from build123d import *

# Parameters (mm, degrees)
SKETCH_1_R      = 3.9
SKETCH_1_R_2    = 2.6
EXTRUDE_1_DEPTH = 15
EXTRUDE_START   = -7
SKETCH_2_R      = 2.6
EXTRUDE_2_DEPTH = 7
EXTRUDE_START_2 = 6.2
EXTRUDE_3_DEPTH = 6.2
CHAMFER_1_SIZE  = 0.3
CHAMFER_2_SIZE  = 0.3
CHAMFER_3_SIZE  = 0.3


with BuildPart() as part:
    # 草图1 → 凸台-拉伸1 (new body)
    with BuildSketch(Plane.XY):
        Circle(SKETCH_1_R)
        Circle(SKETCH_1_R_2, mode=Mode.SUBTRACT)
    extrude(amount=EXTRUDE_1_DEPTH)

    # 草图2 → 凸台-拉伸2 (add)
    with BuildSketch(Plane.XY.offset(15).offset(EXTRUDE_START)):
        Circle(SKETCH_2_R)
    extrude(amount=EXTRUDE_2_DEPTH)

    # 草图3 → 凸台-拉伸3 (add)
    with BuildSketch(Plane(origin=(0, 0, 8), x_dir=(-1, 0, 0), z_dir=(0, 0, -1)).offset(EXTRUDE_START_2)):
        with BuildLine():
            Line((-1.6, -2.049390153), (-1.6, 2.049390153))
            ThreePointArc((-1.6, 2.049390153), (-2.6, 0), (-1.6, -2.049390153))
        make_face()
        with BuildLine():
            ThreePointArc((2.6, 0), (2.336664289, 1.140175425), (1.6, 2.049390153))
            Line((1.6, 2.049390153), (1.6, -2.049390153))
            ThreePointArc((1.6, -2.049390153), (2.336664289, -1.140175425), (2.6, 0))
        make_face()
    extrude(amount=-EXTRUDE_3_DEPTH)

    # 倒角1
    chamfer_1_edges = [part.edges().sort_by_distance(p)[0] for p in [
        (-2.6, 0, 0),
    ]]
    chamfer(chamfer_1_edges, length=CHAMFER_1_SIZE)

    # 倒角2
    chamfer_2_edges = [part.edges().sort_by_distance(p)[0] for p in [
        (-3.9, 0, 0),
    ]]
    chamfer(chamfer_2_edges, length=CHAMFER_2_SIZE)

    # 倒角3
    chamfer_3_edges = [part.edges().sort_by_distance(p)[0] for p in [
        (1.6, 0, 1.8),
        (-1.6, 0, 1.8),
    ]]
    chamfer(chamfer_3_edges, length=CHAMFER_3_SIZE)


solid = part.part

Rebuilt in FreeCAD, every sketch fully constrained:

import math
import FreeCAD as App
import Part
import Sketcher

V = App.Vector
Q = App.Units.Quantity


def edges_at(feature, points):
    """Names of the edges that pass closest to the given points."""
    edges = feature.Shape.Edges
    near = lambda p: min(range(len(edges)), key=lambda i: edges[i].distToShape(Part.Vertex(*p))[0])
    return sorted({f"Edge{near(p) + 1}" for p in points})

doc = App.newDocument("Part")
params = doc.addObject("Spreadsheet::Sheet", "Params")
for row, (alias, value) in enumerate([
    ("sketch1_diameter", "7.8 mm"),
    ("sketch1_diameter2", "5.2 mm"),
    ("pad1_length", "15 mm"),
    ("sketch2_diameter", "5.2 mm"),
    ("pad2_length", "7 mm"),
    ("sketch3_radius", "2.6 mm"),
    ("pad3_length", "6.2 mm"),
    ("chamfer_size", "0.3 mm"),
    ("chamfer2_size", "0.3 mm"),
    ("chamfer3_size", "0.3 mm"),
], start=1):
    params.set(f"A{row}", alias)
    params.set(f"B{row}", "=" + value)
    params.setAlias(f"B{row}", alias)

body = doc.addObject("PartDesign::Body", "Body")

# Sketch on XY plane
sketch1 = body.newObject("Sketcher::SketchObject", "Sketch")
sketch1.AttachmentSupport = (doc.getObject("XY_Plane"), [""])
sketch1.MapMode = "FlatFace"
sketch1.addGeometry([
    Part.Circle(V(0, 0, 0), V(0, 0, 1), 3.9),
    Part.Circle(V(0, 0, 0), V(0, 0, 1), 2.6),
], False)
sketch1.addConstraint([
    Sketcher.Constraint("Coincident", 0, 3, -1, 1),
    Sketcher.Constraint("Coincident", 1, 3, -1, 1),
    Sketcher.Constraint("Diameter", 0, Q("7.8 mm")),
    Sketcher.Constraint("Diameter", 1, Q("5.2 mm")),
])
sketch1.setExpression("Constraints[2]", "Params.sketch1_diameter")
sketch1.setExpression("Constraints[3]", "Params.sketch1_diameter2")
pad1 = body.newObject("PartDesign::Pad", "Pad")
pad1.Profile = sketch1
pad1.setExpression("Length", "Params.pad1_length")

# Sketch on XY plane
sketch2 = body.newObject("Sketcher::SketchObject", "Sketch001")
sketch2.AttachmentSupport = (doc.getObject("XY_Plane"), [""])
sketch2.MapMode = "FlatFace"
sketch2.AttachmentOffset = App.Placement(V(0, 0, 8), App.Rotation())
sketch2.addGeometry(Part.Circle(V(0, 0, 0), V(0, 0, 1), 2.6), False)
sketch2.addConstraint([
    Sketcher.Constraint("Coincident", 0, 3, -1, 1),
    Sketcher.Constraint("Diameter", 0, Q("5.2 mm")),
])
sketch2.setExpression("Constraints[1]", "Params.sketch2_diameter")
pad2 = body.newObject("PartDesign::Pad", "Pad001")
pad2.Profile = sketch2
pad2.setExpression("Length", "Params.pad2_length")

# Sketch on XY plane
sketch3 = body.newObject("Sketcher::SketchObject", "Sketch002")
sketch3.AttachmentSupport = (doc.getObject("XY_Plane"), [""])
sketch3.MapMode = "FlatFace"
sketch3.AttachmentOffset = App.Placement(V(0, 0, 1.8), App.Rotation())
sketch3.addGeometry([
    Part.LineSegment(V(1.6, -2, 0), V(1.6, 2, 0)),  # 0
    Part.ArcOfCircle(Part.Circle(V(0, 0, 0), V(0, 0, 1), 2.6), math.radians(-52), math.radians(52)),  # 1
    Part.ArcOfCircle(Part.Circle(V(0, 0, 0), V(0, 0, 1), 2.6), math.radians(128), math.radians(180)),  # 2
    Part.LineSegment(V(-1.6, 2, 0), V(-1.6, -2, 0)),  # 3
    Part.ArcOfCircle(Part.Circle(V(0, 0, 0), V(0, 0, 1), 2.6), math.radians(180), math.radians(232)),  # 4
], False)
sketch3.addConstraint([
    Sketcher.Constraint("Coincident", 0, 1, 1, 1),
    Sketcher.Constraint("Coincident", 1, 2, 0, 2),
    Sketcher.Constraint("Coincident", 2, 1, 3, 1),
    Sketcher.Constraint("Coincident", 3, 2, 4, 2),
    Sketcher.Constraint("Tangent", 4, 1, 2, 2),
    Sketcher.Constraint("Vertical", 0),
    Sketcher.Constraint("Vertical", 3),
    Sketcher.Constraint("Coincident", 1, 3, -1, 1),
    Sketcher.Constraint("Coincident", 2, 3, -1, 1),
    Sketcher.Constraint("Equal", 1, 2),
    Sketcher.Constraint("Equal", 2, 4),
    Sketcher.Constraint("PointOnObject", 4, 1, -1),
    Sketcher.Constraint("Horizontal", 1, 2, 2, 1),
    Sketcher.Constraint("Radius", 1, Q("2.6 mm")),
    Sketcher.Constraint("DistanceX", 4, 1, 3, 2, Q("1 mm")),
])
sketch3.setExpression("Constraints[13]", "Params.sketch3_radius")
pad3 = body.newObject("PartDesign::Pad", "Pad002")
pad3.Profile = sketch3
pad3.setExpression("Length", "Params.pad3_length")
doc.recompute()

chamfer = body.newObject("PartDesign::Chamfer", "Chamfer")
chamfer.Base = (pad3, edges_at(pad3, [(-2.6, 0, 0)]))
chamfer.setExpression("Size", "Params.chamfer_size")
doc.recompute()

chamfer2 = body.newObject("PartDesign::Chamfer", "Chamfer001")
chamfer2.Base = (chamfer, edges_at(chamfer, [(-3.9, 0, 0)]))
chamfer2.setExpression("Size", "Params.chamfer2_size")
doc.recompute()

chamfer3 = body.newObject("PartDesign::Chamfer", "Chamfer002")
chamfer3.Base = (chamfer2, edges_at(chamfer2, [(1.6, 0, 1.8), (-1.6, 0, 1.8)]))
chamfer3.setExpression("Size", "Params.chamfer3_size")

doc.recompute()
